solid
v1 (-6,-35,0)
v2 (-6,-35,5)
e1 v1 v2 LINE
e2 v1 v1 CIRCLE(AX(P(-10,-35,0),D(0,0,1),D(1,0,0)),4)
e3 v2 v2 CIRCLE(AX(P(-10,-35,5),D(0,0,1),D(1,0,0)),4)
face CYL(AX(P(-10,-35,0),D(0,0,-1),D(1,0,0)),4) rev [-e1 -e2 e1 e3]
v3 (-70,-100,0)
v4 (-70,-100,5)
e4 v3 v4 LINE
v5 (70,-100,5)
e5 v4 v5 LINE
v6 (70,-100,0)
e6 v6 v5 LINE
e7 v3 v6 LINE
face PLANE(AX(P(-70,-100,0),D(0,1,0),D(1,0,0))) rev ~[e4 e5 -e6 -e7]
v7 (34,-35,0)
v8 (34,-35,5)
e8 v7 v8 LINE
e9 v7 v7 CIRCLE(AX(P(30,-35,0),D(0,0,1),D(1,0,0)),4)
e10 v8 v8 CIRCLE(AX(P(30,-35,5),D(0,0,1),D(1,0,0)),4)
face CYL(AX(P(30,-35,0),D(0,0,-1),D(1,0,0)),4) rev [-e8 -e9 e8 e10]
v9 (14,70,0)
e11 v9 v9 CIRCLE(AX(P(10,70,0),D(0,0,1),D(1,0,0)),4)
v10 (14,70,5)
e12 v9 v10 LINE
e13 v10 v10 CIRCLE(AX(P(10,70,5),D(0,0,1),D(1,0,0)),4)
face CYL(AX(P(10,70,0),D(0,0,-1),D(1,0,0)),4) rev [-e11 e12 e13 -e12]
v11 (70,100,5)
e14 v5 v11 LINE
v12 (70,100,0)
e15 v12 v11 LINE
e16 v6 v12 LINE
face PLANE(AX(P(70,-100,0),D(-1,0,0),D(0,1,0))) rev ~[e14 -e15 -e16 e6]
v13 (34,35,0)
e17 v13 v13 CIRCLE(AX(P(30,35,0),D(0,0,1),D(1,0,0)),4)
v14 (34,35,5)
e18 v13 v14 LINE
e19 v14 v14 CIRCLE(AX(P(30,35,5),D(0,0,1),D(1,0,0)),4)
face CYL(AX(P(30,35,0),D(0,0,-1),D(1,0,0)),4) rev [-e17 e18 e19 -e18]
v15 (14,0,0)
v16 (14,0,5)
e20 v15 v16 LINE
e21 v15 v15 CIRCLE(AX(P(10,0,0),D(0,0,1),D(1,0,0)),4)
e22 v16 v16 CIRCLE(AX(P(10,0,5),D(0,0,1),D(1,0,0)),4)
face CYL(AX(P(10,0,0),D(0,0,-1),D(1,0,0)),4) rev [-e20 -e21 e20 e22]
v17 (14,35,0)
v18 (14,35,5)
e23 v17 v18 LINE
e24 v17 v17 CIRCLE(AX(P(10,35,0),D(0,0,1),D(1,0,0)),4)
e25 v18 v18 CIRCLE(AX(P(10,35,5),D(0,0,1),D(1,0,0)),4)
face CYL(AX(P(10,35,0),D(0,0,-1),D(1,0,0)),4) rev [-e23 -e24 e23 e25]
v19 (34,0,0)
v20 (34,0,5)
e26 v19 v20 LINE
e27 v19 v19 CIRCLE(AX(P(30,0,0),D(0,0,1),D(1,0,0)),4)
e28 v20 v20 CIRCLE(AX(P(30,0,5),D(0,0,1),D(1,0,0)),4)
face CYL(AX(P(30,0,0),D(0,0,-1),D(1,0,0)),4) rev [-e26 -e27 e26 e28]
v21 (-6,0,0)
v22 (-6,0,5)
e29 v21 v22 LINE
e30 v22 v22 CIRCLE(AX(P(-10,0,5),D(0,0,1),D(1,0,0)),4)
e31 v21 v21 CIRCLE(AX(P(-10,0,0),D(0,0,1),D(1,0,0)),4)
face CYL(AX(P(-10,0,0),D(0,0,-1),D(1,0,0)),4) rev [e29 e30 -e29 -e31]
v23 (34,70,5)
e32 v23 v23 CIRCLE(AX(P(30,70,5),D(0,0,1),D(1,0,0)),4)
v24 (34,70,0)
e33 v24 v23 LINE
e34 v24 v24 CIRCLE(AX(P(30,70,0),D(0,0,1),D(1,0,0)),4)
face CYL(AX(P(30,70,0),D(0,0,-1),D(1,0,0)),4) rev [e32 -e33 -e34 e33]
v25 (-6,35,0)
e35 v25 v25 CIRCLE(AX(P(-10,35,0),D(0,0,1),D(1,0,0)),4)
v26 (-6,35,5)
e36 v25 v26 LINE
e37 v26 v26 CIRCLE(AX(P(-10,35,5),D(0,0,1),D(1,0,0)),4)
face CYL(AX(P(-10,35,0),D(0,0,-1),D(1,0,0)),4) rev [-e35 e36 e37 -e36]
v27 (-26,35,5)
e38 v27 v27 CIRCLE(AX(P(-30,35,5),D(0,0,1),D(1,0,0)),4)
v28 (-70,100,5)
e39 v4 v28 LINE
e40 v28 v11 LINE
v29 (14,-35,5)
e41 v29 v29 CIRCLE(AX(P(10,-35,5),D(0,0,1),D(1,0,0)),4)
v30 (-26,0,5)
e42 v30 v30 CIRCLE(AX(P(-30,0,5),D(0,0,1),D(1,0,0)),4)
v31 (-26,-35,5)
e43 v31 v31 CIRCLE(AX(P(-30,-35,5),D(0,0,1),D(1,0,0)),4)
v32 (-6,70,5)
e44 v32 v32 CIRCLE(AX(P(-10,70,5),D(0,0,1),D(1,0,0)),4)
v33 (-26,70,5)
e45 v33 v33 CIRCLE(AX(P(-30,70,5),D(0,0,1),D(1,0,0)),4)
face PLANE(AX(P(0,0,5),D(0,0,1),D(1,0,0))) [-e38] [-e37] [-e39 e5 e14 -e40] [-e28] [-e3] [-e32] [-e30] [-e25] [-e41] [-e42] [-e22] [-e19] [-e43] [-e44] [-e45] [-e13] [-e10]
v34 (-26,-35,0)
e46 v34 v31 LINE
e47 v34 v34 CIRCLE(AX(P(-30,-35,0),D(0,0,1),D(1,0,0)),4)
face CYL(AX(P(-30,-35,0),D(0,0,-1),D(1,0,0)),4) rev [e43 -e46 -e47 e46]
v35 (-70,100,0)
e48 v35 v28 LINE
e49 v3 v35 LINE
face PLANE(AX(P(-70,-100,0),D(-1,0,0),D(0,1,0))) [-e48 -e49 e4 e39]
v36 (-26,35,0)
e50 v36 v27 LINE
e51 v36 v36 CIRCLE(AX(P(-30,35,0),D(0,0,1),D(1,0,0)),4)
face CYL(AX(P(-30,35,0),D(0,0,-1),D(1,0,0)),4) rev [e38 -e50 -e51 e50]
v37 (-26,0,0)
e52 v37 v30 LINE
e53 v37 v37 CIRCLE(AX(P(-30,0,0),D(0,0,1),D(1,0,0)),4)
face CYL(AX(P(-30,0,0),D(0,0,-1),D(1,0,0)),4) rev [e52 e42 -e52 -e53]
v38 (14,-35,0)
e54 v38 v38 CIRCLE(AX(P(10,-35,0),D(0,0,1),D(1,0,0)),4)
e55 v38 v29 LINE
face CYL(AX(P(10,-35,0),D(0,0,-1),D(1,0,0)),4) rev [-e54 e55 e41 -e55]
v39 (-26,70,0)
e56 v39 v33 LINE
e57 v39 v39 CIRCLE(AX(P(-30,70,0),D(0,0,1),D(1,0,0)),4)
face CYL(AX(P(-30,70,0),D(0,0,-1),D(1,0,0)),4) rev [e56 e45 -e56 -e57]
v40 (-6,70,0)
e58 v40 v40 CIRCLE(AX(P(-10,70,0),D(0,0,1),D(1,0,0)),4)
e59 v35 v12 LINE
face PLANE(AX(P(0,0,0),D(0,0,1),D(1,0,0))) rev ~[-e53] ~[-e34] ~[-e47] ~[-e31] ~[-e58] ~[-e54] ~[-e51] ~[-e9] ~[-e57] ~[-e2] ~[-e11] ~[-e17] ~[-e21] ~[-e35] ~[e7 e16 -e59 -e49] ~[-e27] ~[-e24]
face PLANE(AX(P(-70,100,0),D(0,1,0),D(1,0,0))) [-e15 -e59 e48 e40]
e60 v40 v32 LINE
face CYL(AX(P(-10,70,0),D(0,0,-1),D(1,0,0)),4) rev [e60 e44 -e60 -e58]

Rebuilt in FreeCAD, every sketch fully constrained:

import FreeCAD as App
import Part
import Sketcher
Q = App.Units.Quantity


def add_polygon(sketch, points):
    """Adds a closed chain of lines whose ends are joined by coincident constraints."""
    first, n = sketch.GeometryCount, len(points)
    for a, b in zip(points, points[1:] + points[:1]):
        sketch.addGeometry(Part.LineSegment(App.Vector(*a, 0), App.Vector(*b, 0)), False)
    for i in range(n):
        sketch.addConstraint(Sketcher.Constraint("Coincident", first + i, 2, first + (i + 1) % n, 1))

doc = App.newDocument("Part")
params = doc.addObject("Spreadsheet::Sheet", "Params")
for row, (alias, value) in enumerate([
    ("sketch1_diameter", "8 mm"),
    ("sketch1_width", "140 mm"),
    ("sketch1_height", "200 mm"),
    ("pad1_length", "5 mm"),
], start=1):
    params.set(f"A{row}", alias)
    params.set(f"B{row}", "=" + value)
    params.setAlias(f"B{row}", alias)

body = doc.addObject("PartDesign::Body", "Body")

# Sketch on XY plane
sketch1 = body.newObject("Sketcher::SketchObject", "Sketch")
sketch1.AttachmentSupport = (doc.getObject("XY_Plane"), [""])
sketch1.MapMode = "FlatFace"
add_polygon(sketch1, [(-70, 100), (-70, -100), (70, -100), (70, 100)])  # lines 0-3
sketch1.addGeometry(Part.Circle(App.Vector(-30, -35, 0), App.Vector(0, 0, 1), 4), False)  # 4
sketch1.addGeometry(Part.Circle(App.Vector(-10, -35, 0), App.Vector(0, 0, 1), 4), False)  # 5
sketch1.addGeometry(Part.Circle(App.Vector(-30, 0, 0), App.Vector(0, 0, 1), 4), False)  # 6
sketch1.addGeometry(Part.Circle(App.Vector(-10, 0, 0), App.Vector(0, 0, 1), 4), False)  # 7
sketch1.addGeometry(Part.Circle(App.Vector(10, -35, 0), App.Vector(0, 0, 1), 4), False)  # 8
sketch1.addGeometry(Part.Circle(App.Vector(30, -35, 0), App.Vector(0, 0, 1), 4), False)  # 9
sketch1.addGeometry(Part.Circle(App.Vector(10, 0, 0), App.Vector(0, 0, 1), 4), False)  # 10
sketch1.addGeometry(Part.Circle(App.Vector(30, 0, 0), App.Vector(0, 0, 1), 4), False)  # 11
sketch1.addGeometry(Part.Circle(App.Vector(-30, 35, 0), App.Vector(0, 0, 1), 4), False)  # 12
sketch1.addGeometry(Part.Circle(App.Vector(-10, 35, 0), App.Vector(0, 0, 1), 4), False)  # 13
sketch1.addGeometry(Part.Circle(App.Vector(-30, 70, 0), App.Vector(0, 0, 1), 4), False)  # 14
sketch1.addGeometry(Part.Circle(App.Vector(-10, 70, 0), App.Vector(0, 0, 1), 4), False)  # 15
sketch1.addGeometry(Part.Circle(App.Vector(10, 35, 0), App.Vector(0, 0, 1), 4), False)  # 16
sketch1.addGeometry(Part.Circle(App.Vector(30, 35, 0), App.Vector(0, 0, 1), 4), False)  # 17
sketch1.addGeometry(Part.Circle(App.Vector(10, 70, 0), App.Vector(0, 0, 1), 4), False)  # 18
sketch1.addGeometry(Part.Circle(App.Vector(30, 70, 0), App.Vector(0, 0, 1), 4), False)  # 19
sketch1.addConstraint(Sketcher.Constraint("Vertical", 0))
sketch1.addConstraint(Sketcher.Constraint("Horizontal", 1))
sketch1.addConstraint(Sketcher.Constraint("Vertical", 2))
sketch1.addConstraint(Sketcher.Constraint("Horizontal", 3))
sketch1.addConstraint(Sketcher.Constraint("Equal", 4, 5))
sketch1.addConstraint(Sketcher.Constraint("Equal", 5, 6))
sketch1.addConstraint(Sketcher.Constraint("Equal", 6, 7))
sketch1.addConstraint(Sketcher.Constraint("Equal", 7, 8))
sketch1.addConstraint(Sketcher.Constraint("Equal", 8, 9))
sketch1.addConstraint(Sketcher.Constraint("Equal", 9, 10))
sketch1.addConstraint(Sketcher.Constraint("Equal", 10, 11))
sketch1.addConstraint(Sketcher.Constraint("Equal", 11, 12))
sketch1.addConstraint(Sketcher.Constraint("Equal", 12, 13))
sketch1.addConstraint(Sketcher.Constraint("Equal", 13, 14))
sketch1.addConstraint(Sketcher.Constraint("Equal", 14, 15))
sketch1.addConstraint(Sketcher.Constraint("Equal", 15, 16))
sketch1.addConstraint(Sketcher.Constraint("Equal", 16, 17))
sketch1.addConstraint(Sketcher.Constraint("Equal", 17, 18))
sketch1.addConstraint(Sketcher.Constraint("Equal", 18, 19))
sketch1.addConstraint(Sketcher.Constraint("Symmetric", 7, 3, 10, 3, -1, 1))
sketch1.addConstraint(Sketcher.Constraint("Symmetric", 6, 3, 11, 3, -1, 1))
sketch1.addConstraint(Sketcher.Constraint("Symmetric", 9, 3, 12, 3, -1, 1))
sketch1.addConstraint(Sketcher.Constraint("Symmetric", 8, 3, 13, 3, -1, 1))
sketch1.addConstraint(Sketcher.Constraint("Symmetric", 5, 3, 16, 3, -1, 1))
sketch1.addConstraint(Sketcher.Constraint("Symmetric", 4, 3, 17, 3, -1, 1))
sketch1.addConstraint(Sketcher.Constraint("Symmetric", 0, 2, 2, 2, -1, 1))
sketch1.addConstraint(Sketcher.Constraint("Symmetric", 5, 3, 8, 3, -2))
sketch1.addConstraint(Sketcher.Constraint("Symmetric", 4, 3, 9, 3, -2))
sketch1.addConstraint(Sketcher.Constraint("Symmetric", 15, 3, 18, 3, -2))
sketch1.addConstraint(Sketcher.Constraint("Symmetric", 14, 3, 19, 3, -2))
sketch1.addConstraint(Sketcher.Constraint("PointOnObject", 6, 3, -1))
sketch1.addConstraint(Sketcher.Constraint("PointOnObject", 7, 3, -1))
sketch1.addConstraint(Sketcher.Constraint("Horizontal", 4, 3, 5, 3))
sketch1.addConstraint(Sketcher.Constraint("Horizontal", 14, 3, 15, 3))
sketch1.addConstraint(Sketcher.Constraint("Vertical", 4, 3, 6, 3))
sketch1.addConstraint(Sketcher.Constraint("Vertical", 5, 3, 7, 3))
sketch1.addConstraint(Sketcher.Constraint("Vertical", 12, 3, 14, 3))
sketch1.addConstraint(Sketcher.Constraint("Vertical", 13, 3, 15, 3))
sketch1.addConstraint(Sketcher.Constraint("Diameter", 4, Q("8 mm")))
sketch1.addConstraint(Sketcher.Constraint("DistanceX", 1, 1, 1, 2, Q("140 mm")))
sketch1.addConstraint(Sketcher.Constraint("DistanceY", 0, 2, 0, 1, Q("200 mm")))
sketch1.addConstraint(Sketcher.Constraint("DistanceX", 4, 3, -1, 1, Q("30 mm")))
sketch1.addConstraint(Sketcher.Constraint("DistanceY", 4, 3, -1, 1, Q("35 mm")))
sketch1.addConstraint(Sketcher.Constraint("DistanceX", 5, 3, -1, 1, Q("10 mm")))
sketch1.addConstraint(Sketcher.Constraint("DistanceY", -1, 1, 14, 3, Q("70 mm")))
sketch1.setExpression("Constraints[42]", "Params.sketch1_diameter")
sketch1.setExpression("Constraints[43]", "Params.sketch1_width")
sketch1.setExpression("Constraints[44]", "Params.sketch1_height")
pad1 = body.newObject("PartDesign::Pad", "Pad")
pad1.Profile = sketch1
pad1.setExpression("Length", "Params.pad1_length")

doc.recompute()
